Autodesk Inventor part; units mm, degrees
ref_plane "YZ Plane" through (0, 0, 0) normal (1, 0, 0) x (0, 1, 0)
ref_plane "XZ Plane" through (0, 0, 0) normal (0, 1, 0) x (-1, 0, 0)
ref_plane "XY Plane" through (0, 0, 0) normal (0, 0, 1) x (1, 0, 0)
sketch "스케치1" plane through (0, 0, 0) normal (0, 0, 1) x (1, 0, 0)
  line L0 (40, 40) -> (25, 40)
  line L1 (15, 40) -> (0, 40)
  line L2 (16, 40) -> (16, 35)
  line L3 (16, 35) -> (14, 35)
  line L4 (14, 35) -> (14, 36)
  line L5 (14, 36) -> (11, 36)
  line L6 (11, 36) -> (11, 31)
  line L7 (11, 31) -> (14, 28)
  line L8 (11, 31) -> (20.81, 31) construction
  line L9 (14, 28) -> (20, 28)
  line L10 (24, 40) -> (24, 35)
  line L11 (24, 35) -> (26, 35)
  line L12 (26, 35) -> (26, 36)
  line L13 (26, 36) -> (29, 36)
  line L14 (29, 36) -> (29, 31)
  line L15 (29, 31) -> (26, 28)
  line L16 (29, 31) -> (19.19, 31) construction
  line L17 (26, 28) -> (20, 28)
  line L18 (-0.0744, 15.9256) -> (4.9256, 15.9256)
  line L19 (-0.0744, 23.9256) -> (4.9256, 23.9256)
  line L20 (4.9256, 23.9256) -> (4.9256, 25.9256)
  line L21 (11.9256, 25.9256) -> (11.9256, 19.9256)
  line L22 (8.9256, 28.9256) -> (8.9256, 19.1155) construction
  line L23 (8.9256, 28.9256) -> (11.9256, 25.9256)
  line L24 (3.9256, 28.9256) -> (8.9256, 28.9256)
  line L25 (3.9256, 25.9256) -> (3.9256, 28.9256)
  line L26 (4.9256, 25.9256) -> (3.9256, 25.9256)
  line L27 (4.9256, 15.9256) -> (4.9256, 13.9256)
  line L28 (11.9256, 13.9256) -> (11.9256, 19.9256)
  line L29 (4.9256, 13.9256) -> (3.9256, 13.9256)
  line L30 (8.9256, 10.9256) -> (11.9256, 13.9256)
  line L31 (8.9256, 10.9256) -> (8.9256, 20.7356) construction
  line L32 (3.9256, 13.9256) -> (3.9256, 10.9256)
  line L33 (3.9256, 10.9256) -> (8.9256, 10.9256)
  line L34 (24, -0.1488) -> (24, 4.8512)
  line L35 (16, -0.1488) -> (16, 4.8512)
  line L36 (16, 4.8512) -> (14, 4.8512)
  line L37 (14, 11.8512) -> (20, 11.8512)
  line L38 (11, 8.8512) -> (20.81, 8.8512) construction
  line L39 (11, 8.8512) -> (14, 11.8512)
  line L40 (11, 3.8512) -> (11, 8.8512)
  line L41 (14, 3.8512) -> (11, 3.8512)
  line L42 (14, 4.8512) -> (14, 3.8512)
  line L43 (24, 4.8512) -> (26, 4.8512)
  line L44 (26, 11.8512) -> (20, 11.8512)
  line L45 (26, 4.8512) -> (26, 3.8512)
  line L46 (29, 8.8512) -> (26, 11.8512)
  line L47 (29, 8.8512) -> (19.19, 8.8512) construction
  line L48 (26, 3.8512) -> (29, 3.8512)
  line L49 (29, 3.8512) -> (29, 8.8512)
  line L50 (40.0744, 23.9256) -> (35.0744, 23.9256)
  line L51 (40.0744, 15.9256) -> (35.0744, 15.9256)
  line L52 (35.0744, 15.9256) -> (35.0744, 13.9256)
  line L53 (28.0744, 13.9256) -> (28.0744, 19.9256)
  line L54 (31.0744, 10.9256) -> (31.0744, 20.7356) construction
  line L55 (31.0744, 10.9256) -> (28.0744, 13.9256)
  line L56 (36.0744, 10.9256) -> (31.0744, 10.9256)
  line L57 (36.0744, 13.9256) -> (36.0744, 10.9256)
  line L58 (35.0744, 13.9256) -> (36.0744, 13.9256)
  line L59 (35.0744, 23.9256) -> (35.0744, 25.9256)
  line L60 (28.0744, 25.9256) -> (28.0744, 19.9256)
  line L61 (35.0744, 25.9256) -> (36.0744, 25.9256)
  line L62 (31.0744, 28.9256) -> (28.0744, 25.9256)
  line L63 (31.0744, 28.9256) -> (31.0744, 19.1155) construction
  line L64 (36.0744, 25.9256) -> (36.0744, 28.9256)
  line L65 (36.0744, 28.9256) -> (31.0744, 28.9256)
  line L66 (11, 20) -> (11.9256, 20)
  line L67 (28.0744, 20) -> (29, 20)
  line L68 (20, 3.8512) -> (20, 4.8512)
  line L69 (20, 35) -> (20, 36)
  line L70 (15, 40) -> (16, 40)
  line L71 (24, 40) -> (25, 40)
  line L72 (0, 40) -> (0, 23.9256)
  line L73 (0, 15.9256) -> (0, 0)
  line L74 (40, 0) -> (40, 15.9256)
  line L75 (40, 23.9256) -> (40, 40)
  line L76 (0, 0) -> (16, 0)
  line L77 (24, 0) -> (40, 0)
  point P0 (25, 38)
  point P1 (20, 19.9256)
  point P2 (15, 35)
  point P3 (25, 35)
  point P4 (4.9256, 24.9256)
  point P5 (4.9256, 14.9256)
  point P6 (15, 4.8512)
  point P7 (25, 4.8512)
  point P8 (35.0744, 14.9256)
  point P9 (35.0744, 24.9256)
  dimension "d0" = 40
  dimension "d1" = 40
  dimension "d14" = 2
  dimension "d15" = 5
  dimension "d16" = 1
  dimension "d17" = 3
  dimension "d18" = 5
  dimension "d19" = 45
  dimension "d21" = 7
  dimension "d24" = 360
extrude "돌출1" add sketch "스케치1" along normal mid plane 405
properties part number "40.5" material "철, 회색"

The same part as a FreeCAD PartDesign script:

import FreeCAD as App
import Part
import Sketcher
from FreeCAD import Vector


def add_polygon(sketch, points):
    """Adds a closed chain of lines whose ends are joined by coincident constraints."""
    first, n = sketch.GeometryCount, len(points)
    for a, b in zip(points, points[1:] + points[:1]):
        sketch.addGeometry(Part.LineSegment(App.Vector(*a, 0), App.Vector(*b, 0)), False)
    for i in range(n):
        sketch.addConstraint(Sketcher.Constraint("Coincident", first + i, 2, first + (i + 1) % n, 1))

doc = App.newDocument("Part")
body = doc.addObject("PartDesign::Body", "Body")

sketch1 = body.newObject("Sketcher::SketchObject", "Sketch")
sketch1.AttachmentSupport = (doc.getObject("XY_Plane"), [""])
sketch1.MapMode = "FlatFace"
add_polygon(sketch1, [(40, 23.9), (40, 40), (24, 40), (24, 35), (26, 35), (26, 36), (29, 36), (29, 31), (26, 28), (14, 28), (11, 31), (11, 36), (14, 36), (14, 35), (16, 35), (16, 40), (0, 40), (0, 23.9), (4.9, 23.9), (4.9, 25.9), (3.9, 25.9), (3.9, 28.9), (8.9, 28.9), (11.9, 25.9), (11.9, 13.9), (8.9, 10.9), (3.9, 10.9), (3.9, 13.9), (4.9, 13.9), (4.9, 15.9), (0, 15.9), (0, 0), (16, 0), (16, 4.9), (14, 4.9), (14, 3.9), (11, 3.9), (11, 8.9), (14, 11.9), (26, 11.9), (29, 8.9), (29, 3.9), (26, 3.9), (26, 4.9), (24, 4.9), (24, 0), (40, 0), (40, 15.9), (35.1, 15.9), (35.1, 13.9), (36.1, 13.9), (36.1, 10.9), (31.1, 10.9), (28.1, 13.9), (28.1, 25.9), (31.1, 28.9), (36.1, 28.9), (36.1, 25.9), (35.1, 25.9), (35.1, 23.9)])
sketch1.addConstraint([
    Sketcher.Constraint("Vertical", 0),
    Sketcher.Constraint("Horizontal", 1),
    Sketcher.Constraint("Vertical", 2),
    Sketcher.Constraint("Horizontal", 3),
    Sketcher.Constraint("Vertical", 4),
    Sketcher.Constraint("Horizontal", 5),
    Sketcher.Constraint("Vertical", 6),
    Sketcher.Constraint("Horizontal", 8),
    Sketcher.Constraint("Vertical", 10),
    Sketcher.Constraint("Horizontal", 11),
    Sketcher.Constraint("Vertical", 12),
    Sketcher.Constraint("Horizontal", 13),
    Sketcher.Constraint("Vertical", 14),
    Sketcher.Constraint("Horizontal", 15),
    Sketcher.Constraint("Vertical", 16),
    Sketcher.Constraint("Horizontal", 17),
    Sketcher.Constraint("Vertical", 18),
    Sketcher.Constraint("Horizontal", 19),
    Sketcher.Constraint("Vertical", 20),
    Sketcher.Constraint("Horizontal", 21),
    Sketcher.Constraint("Vertical", 23),
    Sketcher.Constraint("Horizontal", 25),
    Sketcher.Constraint("Vertical", 26),
    Sketcher.Constraint("Horizontal", 27),
    Sketcher.Constraint("Vertical", 28),
    Sketcher.Constraint("Horizontal", 29),
    Sketcher.Constraint("Vertical", 30),
    Sketcher.Constraint("Horizontal", 31),
    Sketcher.Constraint("Vertical", 32),
    Sketcher.Constraint("Horizontal", 33),
    Sketcher.Constraint("Vertical", 34),
    Sketcher.Constraint("Horizontal", 35),
    Sketcher.Constraint("Vertical", 36),
    Sketcher.Constraint("Horizontal", 38),
    Sketcher.Constraint("Vertical", 40),
    Sketcher.Constraint("Horizontal", 41),
    Sketcher.Constraint("Vertical", 42),
    Sketcher.Constraint("Horizontal", 43),
    Sketcher.Constraint("Vertical", 44),
    Sketcher.Constraint("Horizontal", 45),
    Sketcher.Constraint("Vertical", 46),
    Sketcher.Constraint("Horizontal", 47),
    Sketcher.Constraint("Vertical", 48),
    Sketcher.Constraint("Horizontal", 49),
    Sketcher.Constraint("Vertical", 50),
    Sketcher.Constraint("Horizontal", 51),
    Sketcher.Constraint("Vertical", 53),
    Sketcher.Constraint("Horizontal", 55),
    Sketcher.Constraint("Vertical", 56),
    Sketcher.Constraint("Horizontal", 57),
    Sketcher.Constraint("Vertical", 58),
    Sketcher.Constraint("Horizontal", 59),
    Sketcher.Constraint("Coincident", 30, 2, -1, 1),
    Sketcher.Constraint("PointOnObject", 15, 2, -2),
    Sketcher.Constraint("PointOnObject", 44, 2, -1),
    Sketcher.Constraint("Perpendicular", 7, 9),
    Sketcher.Constraint("Parallel", 9, 22),
    Sketcher.Constraint("Perpendicular", 22, 24),
    Sketcher.Constraint("Parallel", 24, 37),
    Sketcher.Constraint("Perpendicular", 37, 39),
    Sketcher.Constraint("Parallel", 39, 52),
    Sketcher.Constraint("Perpendicular", 52, 54),
    Sketcher.Constraint("Horizontal", 6, 2, 9, 2),
    Sketcher.Constraint("Horizontal", 5, 2, 10, 2),
    Sketcher.Constraint("Horizontal", 3, 2, 12, 2),
    Sketcher.Constraint("Horizontal", 1, 2, 14, 2),
    Sketcher.Constraint("Horizontal", 19, 2, 22, 2),
    Sketcher.Constraint("Horizontal", 23, 2, 26, 2),
    Sketcher.Constraint("Horizontal", 36, 2, 39, 2),
    Sketcher.Constraint("Horizontal", 35, 2, 40, 2),
    Sketcher.Constraint("Horizontal", 33, 2, 42, 2),
    Sketcher.Constraint("Horizontal", 29, 2, 46, 2),
    Sketcher.Constraint("Horizontal", 27, 2, 48, 2),
    Sketcher.Constraint("Horizontal", 25, 2, 50, 2),
    Sketcher.Constraint("Horizontal", 49, 2, 52, 2),
    Sketcher.Constraint("Horizontal", 22, 2, 53, 2),
    Sketcher.Constraint("Horizontal", 21, 2, 54, 2),
    Sketcher.Constraint("Horizontal", 53, 2, 56, 2),
    Sketcher.Constraint("Horizontal", 17, 2, 58, 2),
    Sketcher.Constraint("Vertical", 4, 2, 7, 2),
    Sketcher.Constraint("Vertical", 8, 2, 11, 2),
    Sketcher.Constraint("Vertical", 21, 2, 24, 2),
    Sketcher.Constraint("Vertical", 20, 2, 25, 2),
    Sketcher.Constraint("Vertical", 18, 2, 27, 2),
    Sketcher.Constraint("Vertical", 14, 2, 31, 2),
    Sketcher.Constraint("Vertical", 12, 2, 33, 2),
    Sketcher.Constraint("Vertical", 10, 2, 35, 2),
    Sketcher.Constraint("Vertical", 34, 2, 37, 2),
    Sketcher.Constraint("Vertical", 7, 2, 38, 2),
    Sketcher.Constraint("Vertical", 6, 2, 39, 2),
    Sketcher.Constraint("Vertical", 38, 2, 41, 2),
    Sketcher.Constraint("Vertical", 2, 2, 43, 2),
    Sketcher.Constraint("Vertical", 0, 2, 45, 2),
    Sketcher.Constraint("Vertical", 50, 2, 55, 2),
    Sketcher.Constraint("Vertical", 48, 2, 57, 2),
    Sketcher.Constraint("Equal", 3, 13),
    Sketcher.Constraint("Equal", 1, 15),
    Sketcher.Constraint("Equal", 29, 47),
    Sketcher.Constraint("Equal", 27, 49),
    Sketcher.Constraint("Equal", 25, 51),
    Sketcher.Constraint("Equal", 55, 2),
    Sketcher.Constraint("Equal", 57, 4),
    Sketcher.Constraint("Equal", 2, 6),
    Sketcher.Constraint("Equal", 43, 18),
    Sketcher.Constraint("Equal", 41, 20),
    Sketcher.Constraint("Equal", 38, 23),
    Sketcher.Constraint("Equal", 18, 28),
    Sketcher.Constraint("Equal", 12, 34),
    Sketcher.Constraint("Equal", 14, 36),
    Sketcher.Constraint("DistanceX", 3, 1, 3, 2, 2.0),
    Sketcher.Constraint("DistanceX", 5, 1, 5, 2, 3.0),
    Sketcher.Constraint("DistanceX", 19, 2, 19, 1, 1.0),
    Sketcher.Constraint("DistanceX", 21, 1, 21, 2, 5.0),
    Sketcher.Constraint("DistanceX", -1, 1, 0, 2, 40.0),
    Sketcher.Constraint("DistanceY", -1, 1, 0, 2, 40.0),
    Sketcher.Constraint("DistanceX", 1, 2, 1, 1, 16.0),
    Sketcher.Constraint("DistanceX", 17, 1, 17, 2, 4.9256),
    Sketcher.Constraint("DistanceY", 0, 1, 0, 2, 16.0744),
    Sketcher.Constraint("DistanceY", 32, 1, 32, 2, 4.8512),
])
pad1 = body.newObject("PartDesign::Pad", "Pad")
pad1.Profile = sketch1
pad1.Length = 405
pad1.Midplane = True

doc.recompute()
